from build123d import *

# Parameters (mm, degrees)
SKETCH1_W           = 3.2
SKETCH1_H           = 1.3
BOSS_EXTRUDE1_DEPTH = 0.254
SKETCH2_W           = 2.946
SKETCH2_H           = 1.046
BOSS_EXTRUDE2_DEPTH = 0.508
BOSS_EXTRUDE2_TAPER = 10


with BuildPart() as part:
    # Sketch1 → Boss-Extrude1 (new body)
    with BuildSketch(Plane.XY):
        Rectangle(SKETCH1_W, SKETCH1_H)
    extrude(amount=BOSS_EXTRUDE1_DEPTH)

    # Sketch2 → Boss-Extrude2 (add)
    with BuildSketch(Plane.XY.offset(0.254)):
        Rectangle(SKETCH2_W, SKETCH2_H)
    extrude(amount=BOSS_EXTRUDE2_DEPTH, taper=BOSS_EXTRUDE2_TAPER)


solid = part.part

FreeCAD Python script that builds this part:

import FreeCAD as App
import Part
import Sketcher


def add_polygon(sketch, points):
    """Adds a closed chain of lines whose ends are joined by coincident constraints."""
    first, n = sketch.GeometryCount, len(points)
    for a, b in zip(points, points[1:] + points[:1]):
        sketch.addGeometry(Part.LineSegment(App.Vector(*a, 0), App.Vector(*b, 0)), False)
    for i in range(n):
        sketch.addConstraint(Sketcher.Constraint("Coincident", first + i, 2, first + (i + 1) % n, 1))

doc = App.newDocument("Part")
params = doc.addObject("Spreadsheet::Sheet", "Params")
for row, (alias, value) in enumerate([
    ("sketch1_width", "3.2 mm"),
    ("sketch1_height", "1.3 mm"),
    ("pad1_length", "0.254 mm"),
    ("pad2_length", "0.508 mm"),
    ("pad2_taper", "-10 deg"),
], start=1):
    params.set(f"A{row}", alias)
    params.set(f"B{row}", "=" + value)
    params.setAlias(f"B{row}", alias)

body = doc.addObject("PartDesign::Body", "Body")

sketch1 = body.newObject("Sketcher::SketchObject", "Sketch")
sketch1.AttachmentSupport = (doc.getObject("XY_Plane"), [""])
sketch1.MapMode = "FlatFace"
add_polygon(sketch1, [(-1.6, 0.7), (-1.6, -0.7), (1.6, -0.7), (1.6, 0.7)])
sketch1.addConstraint([
    Sketcher.Constraint("Vertical", 0),
    Sketcher.Constraint("Horizontal", 1),
    Sketcher.Constraint("Vertical", 2),
    Sketcher.Constraint("Horizontal", 3),
    Sketcher.Constraint("Symmetric", 0, 2, 2, 2, -1, 1),
    Sketcher.Constraint("DistanceX", 1, 1, 1, 2, 3.2),
    Sketcher.Constraint("DistanceY", 0, 2, 0, 1, 1.3),
])
sketch1.setExpression("Constraints[9]", "Params.sketch1_width")
sketch1.setExpression("Constraints[10]", "Params.sketch1_height")
pad1 = body.newObject("PartDesign::Pad", "Pad")
pad1.Profile = sketch1
pad1.setExpression("Length", "Params.pad1_length")

sketch2 = body.newObject("Sketcher::SketchObject", "Sketch001")
sketch2.AttachmentSupport = (doc.getObject("XY_Plane"), [""])
sketch2.MapMode = "FlatFace"
sketch2.AttachmentOffset = App.Placement(App.Vector(0, 0, 0.254), App.Rotation())
add_polygon(sketch2, [(-1.5, 0.5), (-1.5, -0.5), (1.5, -0.5), (1.5, 0.5)])
sketch2.addConstraint([
    Sketcher.Constraint("Vertical", 0),
    Sketcher.Constraint("Horizontal", 1),
    Sketcher.Constraint("Vertical", 2),
    Sketcher.Constraint("Horizontal", 3),
    Sketcher.Constraint("Symmetric", 0, 2, 2, 2, -1, 1),
    Sketcher.Constraint("DistanceX", 1, 1, 1, 2, 2.946),
    Sketcher.Constraint("DistanceY", 0, 2, 0, 1, 1.046),
])
pad2 = body.newObject("PartDesign::Pad", "Pad001")
pad2.Profile = sketch2
pad2.setExpression("Length", "Params.pad2_length")
pad2.setExpression("TaperAngle", "Params.pad2_taper")

doc.recompute()
